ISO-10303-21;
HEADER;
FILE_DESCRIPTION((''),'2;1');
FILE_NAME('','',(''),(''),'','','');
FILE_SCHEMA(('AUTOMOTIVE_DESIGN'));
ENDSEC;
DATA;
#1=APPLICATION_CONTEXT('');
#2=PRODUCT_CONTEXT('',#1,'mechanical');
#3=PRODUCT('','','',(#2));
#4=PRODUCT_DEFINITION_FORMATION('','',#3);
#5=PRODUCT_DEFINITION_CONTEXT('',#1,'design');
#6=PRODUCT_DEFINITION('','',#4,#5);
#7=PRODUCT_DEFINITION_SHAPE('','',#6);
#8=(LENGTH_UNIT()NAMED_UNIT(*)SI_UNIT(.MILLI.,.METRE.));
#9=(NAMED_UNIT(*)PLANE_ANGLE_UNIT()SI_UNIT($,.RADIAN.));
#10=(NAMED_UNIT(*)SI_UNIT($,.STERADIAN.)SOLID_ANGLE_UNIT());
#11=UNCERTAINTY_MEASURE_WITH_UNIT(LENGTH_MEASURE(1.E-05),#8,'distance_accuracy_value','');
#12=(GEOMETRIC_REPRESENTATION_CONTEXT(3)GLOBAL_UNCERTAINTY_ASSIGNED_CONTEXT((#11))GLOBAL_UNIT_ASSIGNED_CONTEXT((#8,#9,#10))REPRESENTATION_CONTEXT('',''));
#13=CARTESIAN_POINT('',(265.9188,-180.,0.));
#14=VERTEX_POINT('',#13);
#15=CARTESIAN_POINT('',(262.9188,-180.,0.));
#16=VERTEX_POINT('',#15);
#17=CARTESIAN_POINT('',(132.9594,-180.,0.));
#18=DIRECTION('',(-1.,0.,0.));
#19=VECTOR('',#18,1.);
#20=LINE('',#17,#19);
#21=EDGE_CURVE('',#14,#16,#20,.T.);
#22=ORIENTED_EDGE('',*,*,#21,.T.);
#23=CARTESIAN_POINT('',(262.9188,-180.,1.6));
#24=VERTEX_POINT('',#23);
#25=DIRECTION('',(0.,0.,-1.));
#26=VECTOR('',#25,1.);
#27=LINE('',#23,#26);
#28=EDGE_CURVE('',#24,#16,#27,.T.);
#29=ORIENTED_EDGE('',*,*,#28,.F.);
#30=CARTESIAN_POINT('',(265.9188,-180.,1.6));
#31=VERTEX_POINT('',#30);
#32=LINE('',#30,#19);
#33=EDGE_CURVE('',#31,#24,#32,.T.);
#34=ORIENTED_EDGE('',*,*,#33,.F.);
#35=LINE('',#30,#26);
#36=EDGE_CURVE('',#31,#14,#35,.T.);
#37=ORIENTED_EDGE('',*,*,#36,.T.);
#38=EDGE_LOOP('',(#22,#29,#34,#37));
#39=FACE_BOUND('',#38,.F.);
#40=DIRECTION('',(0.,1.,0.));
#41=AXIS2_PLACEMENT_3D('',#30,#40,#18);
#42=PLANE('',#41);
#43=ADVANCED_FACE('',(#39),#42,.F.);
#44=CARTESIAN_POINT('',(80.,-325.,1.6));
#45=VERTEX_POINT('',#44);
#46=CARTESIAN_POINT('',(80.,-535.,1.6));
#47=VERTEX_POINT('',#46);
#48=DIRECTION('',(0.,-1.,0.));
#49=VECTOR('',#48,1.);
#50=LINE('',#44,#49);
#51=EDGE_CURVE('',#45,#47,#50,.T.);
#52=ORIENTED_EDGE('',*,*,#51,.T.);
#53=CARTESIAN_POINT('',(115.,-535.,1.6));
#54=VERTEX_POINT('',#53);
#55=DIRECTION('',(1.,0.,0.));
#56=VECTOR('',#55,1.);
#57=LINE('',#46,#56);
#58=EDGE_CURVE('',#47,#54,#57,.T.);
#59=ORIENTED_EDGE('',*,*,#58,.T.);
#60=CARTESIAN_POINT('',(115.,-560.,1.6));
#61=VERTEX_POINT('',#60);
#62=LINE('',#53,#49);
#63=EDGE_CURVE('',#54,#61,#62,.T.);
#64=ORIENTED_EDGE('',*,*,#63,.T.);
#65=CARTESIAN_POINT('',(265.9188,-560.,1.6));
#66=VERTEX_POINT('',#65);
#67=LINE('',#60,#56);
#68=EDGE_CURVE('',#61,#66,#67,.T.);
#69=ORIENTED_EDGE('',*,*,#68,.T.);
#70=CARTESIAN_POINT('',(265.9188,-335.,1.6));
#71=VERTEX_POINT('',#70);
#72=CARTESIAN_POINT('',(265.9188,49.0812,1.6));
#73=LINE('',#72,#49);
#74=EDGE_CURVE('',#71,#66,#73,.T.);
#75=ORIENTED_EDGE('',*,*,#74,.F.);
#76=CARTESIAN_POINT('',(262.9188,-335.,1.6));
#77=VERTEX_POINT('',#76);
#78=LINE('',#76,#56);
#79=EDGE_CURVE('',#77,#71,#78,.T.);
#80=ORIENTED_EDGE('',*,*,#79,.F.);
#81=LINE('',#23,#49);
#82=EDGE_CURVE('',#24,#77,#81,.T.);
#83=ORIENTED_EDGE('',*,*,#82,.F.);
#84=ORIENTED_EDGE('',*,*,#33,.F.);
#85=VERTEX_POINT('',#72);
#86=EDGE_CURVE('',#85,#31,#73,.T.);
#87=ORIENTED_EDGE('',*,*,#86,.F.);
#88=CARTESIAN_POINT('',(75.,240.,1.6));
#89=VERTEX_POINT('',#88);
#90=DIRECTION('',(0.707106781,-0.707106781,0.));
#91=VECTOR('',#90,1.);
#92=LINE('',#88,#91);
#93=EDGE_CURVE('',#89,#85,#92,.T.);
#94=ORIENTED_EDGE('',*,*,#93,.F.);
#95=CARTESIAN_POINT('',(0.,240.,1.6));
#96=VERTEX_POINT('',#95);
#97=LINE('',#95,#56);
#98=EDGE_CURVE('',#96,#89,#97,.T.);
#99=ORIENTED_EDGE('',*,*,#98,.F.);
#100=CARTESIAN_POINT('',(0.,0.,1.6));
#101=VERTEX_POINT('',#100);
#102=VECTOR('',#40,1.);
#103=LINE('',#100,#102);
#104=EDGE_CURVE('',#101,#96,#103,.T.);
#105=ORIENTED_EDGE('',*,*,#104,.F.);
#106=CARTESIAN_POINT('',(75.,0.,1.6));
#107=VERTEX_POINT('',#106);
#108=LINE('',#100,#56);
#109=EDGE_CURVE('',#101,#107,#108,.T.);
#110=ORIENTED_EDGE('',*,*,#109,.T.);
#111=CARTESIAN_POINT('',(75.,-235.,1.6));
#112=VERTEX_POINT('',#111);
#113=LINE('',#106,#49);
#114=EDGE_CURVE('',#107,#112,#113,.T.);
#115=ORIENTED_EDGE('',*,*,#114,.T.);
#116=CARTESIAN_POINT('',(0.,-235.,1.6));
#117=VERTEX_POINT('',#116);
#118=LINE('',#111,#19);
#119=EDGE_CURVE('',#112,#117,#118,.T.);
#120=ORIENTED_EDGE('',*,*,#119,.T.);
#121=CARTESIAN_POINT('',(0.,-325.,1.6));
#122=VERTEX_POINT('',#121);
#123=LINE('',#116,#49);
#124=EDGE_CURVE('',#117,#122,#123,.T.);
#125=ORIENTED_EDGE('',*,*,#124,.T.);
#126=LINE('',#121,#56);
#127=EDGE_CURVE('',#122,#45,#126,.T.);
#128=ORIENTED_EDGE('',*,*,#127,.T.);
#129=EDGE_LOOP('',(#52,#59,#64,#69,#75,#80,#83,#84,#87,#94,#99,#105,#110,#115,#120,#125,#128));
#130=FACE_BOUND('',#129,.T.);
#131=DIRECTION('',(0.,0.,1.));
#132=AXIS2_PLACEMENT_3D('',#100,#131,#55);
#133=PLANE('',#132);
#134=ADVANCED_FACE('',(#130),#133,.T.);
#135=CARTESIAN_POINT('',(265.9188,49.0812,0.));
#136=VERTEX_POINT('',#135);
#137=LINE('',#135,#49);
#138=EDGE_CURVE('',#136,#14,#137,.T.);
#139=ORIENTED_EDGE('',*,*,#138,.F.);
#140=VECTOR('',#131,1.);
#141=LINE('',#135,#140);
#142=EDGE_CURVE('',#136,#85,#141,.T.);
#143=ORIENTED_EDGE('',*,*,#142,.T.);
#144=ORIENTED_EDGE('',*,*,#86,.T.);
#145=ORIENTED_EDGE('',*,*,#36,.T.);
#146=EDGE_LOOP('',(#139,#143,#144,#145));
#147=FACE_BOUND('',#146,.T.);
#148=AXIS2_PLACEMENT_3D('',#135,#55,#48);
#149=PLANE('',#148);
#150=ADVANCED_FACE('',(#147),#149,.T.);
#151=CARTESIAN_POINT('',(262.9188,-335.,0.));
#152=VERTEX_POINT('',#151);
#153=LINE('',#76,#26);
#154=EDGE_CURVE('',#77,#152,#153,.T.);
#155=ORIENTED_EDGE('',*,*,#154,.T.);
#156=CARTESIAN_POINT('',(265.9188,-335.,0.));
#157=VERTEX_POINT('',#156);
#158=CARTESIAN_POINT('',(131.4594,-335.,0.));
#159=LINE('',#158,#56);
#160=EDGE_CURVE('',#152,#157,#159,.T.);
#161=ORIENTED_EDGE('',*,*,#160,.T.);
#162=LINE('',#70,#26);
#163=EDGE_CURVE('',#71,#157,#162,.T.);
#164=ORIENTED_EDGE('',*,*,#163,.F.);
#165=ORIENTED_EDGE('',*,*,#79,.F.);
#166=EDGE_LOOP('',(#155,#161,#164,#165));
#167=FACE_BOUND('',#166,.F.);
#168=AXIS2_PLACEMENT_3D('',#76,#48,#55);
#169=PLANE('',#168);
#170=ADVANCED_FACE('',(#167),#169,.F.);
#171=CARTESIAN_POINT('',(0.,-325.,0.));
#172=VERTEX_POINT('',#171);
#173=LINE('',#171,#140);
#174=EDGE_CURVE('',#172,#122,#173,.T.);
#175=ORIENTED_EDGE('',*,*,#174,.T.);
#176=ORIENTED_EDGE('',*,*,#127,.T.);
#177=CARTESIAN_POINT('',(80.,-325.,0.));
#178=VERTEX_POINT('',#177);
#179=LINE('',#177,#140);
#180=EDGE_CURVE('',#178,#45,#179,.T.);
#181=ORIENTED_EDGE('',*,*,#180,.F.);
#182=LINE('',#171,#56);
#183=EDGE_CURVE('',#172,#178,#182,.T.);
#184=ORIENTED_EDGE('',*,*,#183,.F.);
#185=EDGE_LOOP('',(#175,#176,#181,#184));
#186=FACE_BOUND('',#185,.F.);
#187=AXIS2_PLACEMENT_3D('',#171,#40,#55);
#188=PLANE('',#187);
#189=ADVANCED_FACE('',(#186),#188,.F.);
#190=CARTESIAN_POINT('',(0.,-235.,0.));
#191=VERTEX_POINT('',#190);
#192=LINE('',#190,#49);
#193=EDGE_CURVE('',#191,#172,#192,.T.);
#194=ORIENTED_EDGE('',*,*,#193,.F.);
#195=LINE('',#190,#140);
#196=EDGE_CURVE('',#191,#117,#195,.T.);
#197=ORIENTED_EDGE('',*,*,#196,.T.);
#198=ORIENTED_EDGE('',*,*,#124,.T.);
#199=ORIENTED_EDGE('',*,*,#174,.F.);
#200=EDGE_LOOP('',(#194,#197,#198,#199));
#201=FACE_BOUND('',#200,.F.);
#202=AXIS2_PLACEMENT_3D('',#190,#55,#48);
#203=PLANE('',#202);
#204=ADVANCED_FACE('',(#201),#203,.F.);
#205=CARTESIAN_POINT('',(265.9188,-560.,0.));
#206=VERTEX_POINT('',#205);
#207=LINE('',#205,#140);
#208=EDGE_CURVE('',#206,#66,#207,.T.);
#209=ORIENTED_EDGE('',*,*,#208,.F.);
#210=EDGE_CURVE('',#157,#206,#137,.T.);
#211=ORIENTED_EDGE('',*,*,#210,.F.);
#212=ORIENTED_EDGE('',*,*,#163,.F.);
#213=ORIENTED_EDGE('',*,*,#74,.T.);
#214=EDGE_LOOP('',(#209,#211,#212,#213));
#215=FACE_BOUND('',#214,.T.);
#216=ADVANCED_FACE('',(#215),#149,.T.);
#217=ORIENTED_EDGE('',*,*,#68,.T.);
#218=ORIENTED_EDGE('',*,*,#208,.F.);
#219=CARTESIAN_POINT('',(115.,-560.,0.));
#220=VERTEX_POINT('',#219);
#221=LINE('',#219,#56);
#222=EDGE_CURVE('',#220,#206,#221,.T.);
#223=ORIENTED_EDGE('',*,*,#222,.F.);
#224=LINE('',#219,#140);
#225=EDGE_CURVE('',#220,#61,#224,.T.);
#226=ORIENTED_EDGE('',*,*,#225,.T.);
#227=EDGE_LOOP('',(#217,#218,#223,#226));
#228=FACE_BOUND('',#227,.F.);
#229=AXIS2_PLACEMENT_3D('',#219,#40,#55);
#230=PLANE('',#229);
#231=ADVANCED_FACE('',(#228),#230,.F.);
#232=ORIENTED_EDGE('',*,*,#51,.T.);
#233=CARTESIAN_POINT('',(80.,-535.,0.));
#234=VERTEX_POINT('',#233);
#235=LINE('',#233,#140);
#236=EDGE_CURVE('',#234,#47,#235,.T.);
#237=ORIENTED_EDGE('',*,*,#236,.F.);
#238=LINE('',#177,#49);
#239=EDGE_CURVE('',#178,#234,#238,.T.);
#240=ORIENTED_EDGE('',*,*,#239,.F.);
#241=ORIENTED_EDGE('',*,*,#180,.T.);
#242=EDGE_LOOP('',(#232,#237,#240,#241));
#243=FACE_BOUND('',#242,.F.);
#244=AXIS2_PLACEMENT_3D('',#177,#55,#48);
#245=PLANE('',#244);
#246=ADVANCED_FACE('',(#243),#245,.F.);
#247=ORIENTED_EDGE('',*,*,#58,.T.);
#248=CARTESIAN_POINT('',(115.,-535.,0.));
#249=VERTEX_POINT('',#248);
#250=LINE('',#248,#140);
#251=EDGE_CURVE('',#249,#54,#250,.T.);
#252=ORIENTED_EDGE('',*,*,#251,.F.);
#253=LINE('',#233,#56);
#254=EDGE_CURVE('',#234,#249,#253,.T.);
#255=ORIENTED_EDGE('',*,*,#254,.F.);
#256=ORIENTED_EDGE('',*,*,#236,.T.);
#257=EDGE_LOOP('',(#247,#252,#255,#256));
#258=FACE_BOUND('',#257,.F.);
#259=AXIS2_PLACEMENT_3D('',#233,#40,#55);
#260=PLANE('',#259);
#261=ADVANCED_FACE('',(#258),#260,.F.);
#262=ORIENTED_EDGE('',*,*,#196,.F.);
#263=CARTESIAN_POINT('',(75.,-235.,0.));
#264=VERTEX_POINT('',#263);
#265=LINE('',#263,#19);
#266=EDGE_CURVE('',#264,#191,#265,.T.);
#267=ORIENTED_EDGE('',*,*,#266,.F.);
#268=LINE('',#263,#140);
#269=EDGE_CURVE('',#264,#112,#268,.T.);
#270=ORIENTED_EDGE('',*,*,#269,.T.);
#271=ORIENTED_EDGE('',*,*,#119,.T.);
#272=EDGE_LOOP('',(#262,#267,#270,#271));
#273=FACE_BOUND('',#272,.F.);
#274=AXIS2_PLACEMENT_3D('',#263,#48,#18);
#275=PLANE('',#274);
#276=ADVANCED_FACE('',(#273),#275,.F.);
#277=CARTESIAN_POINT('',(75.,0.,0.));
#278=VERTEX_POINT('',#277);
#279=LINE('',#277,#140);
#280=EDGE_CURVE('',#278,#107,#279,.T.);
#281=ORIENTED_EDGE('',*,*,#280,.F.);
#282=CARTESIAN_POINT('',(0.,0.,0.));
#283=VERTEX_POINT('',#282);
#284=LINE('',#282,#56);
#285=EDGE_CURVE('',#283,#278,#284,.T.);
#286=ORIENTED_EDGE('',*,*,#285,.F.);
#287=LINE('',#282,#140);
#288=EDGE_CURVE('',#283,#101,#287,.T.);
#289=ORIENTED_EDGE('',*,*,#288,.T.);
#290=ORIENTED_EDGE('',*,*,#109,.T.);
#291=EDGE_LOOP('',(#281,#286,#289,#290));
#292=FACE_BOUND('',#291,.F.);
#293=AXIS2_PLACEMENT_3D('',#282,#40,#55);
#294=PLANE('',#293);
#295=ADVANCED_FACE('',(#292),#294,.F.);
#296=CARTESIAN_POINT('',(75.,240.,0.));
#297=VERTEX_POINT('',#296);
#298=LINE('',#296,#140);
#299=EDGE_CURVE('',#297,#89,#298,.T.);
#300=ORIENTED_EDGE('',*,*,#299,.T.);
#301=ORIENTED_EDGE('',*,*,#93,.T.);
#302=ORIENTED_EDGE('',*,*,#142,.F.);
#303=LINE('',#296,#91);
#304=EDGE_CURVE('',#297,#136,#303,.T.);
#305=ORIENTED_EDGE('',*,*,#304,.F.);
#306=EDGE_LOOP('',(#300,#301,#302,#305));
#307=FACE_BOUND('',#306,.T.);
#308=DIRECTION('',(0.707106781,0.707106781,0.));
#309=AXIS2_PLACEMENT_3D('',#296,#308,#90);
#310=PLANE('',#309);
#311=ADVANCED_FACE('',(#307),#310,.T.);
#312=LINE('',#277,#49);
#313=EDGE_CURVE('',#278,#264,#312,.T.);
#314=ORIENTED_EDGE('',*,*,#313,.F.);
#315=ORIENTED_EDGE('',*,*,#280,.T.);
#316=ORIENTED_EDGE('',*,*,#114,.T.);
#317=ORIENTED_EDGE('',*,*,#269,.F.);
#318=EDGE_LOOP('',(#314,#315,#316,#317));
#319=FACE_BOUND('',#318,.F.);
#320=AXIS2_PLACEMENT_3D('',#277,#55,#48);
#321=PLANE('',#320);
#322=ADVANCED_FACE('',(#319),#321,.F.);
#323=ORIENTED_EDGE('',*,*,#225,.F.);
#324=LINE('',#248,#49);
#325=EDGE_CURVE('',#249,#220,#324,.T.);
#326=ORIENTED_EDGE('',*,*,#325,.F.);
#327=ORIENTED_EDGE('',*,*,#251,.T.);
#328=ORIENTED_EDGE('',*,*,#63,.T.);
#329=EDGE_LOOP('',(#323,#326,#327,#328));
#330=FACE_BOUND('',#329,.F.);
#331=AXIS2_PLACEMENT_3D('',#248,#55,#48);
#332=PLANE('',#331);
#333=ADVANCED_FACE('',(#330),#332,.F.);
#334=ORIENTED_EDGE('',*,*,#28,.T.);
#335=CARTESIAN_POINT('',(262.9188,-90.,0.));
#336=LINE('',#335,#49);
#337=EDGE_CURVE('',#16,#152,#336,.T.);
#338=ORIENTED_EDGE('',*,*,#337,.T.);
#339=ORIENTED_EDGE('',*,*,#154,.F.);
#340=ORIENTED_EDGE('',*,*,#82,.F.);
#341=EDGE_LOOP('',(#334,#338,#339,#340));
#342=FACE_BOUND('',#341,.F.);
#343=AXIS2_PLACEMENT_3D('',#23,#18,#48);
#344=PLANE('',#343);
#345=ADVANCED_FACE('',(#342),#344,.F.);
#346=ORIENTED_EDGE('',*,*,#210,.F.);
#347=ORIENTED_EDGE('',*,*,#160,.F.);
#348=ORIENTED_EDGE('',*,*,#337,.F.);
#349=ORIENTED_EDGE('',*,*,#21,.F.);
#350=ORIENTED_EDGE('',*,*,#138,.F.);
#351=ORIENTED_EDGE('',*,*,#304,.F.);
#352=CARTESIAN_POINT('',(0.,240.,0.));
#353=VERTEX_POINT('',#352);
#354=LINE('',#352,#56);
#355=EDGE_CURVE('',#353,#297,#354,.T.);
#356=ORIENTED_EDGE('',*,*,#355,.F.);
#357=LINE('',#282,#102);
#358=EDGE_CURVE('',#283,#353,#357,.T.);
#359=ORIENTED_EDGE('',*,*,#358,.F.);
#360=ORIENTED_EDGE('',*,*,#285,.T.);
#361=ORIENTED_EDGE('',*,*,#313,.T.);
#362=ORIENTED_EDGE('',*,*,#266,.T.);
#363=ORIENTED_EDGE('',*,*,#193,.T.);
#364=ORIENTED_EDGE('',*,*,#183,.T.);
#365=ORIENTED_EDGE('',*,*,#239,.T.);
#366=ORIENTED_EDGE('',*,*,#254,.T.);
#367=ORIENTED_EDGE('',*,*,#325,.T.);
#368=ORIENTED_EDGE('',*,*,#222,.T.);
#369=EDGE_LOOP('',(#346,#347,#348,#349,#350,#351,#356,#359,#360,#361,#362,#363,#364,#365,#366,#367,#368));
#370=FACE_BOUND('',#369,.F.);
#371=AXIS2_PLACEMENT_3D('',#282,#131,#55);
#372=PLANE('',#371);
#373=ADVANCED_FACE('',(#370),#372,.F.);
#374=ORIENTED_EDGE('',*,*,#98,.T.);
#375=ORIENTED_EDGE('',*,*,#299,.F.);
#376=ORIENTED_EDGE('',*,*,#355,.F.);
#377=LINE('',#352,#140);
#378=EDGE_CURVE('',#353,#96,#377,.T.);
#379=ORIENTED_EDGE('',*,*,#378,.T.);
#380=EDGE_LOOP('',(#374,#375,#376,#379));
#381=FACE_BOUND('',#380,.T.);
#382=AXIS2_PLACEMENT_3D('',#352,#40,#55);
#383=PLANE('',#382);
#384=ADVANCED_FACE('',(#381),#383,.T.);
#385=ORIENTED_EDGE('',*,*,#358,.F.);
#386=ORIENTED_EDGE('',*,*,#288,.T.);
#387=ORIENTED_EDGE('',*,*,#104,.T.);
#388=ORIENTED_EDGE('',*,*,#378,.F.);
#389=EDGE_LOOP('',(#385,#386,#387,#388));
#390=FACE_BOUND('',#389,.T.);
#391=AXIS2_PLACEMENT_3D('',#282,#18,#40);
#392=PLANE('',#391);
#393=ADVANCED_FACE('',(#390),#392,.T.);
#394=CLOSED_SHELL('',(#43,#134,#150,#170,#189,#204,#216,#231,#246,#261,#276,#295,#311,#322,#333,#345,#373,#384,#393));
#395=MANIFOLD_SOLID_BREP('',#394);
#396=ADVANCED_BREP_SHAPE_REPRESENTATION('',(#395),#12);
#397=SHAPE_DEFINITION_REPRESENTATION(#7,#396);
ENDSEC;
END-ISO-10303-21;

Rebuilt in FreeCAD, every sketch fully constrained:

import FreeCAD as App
import Part
import Sketcher
from FreeCAD import Vector
Q = App.Units.Quantity


def add_polygon(sketch, points):
    """Adds a closed chain of lines whose ends are joined by coincident constraints."""
    first, n = sketch.GeometryCount, len(points)
    for a, b in zip(points, points[1:] + points[:1]):
        sketch.addGeometry(Part.LineSegment(App.Vector(*a, 0), App.Vector(*b, 0)), False)
    for i in range(n):
        sketch.addConstraint(Sketcher.Constraint("Coincident", first + i, 2, first + (i + 1) % n, 1))

doc = App.newDocument("Part")
params = doc.addObject("Spreadsheet::Sheet", "Params")
for row, (alias, value) in enumerate([
    ("sketch1_width", "75 mm"),
    ("sketch1_width2", "80 mm"),
    ("sketch1_width3", "35 mm"),
    ("sketch1_height", "240 mm"),
    ("sketch1_height2", "235 mm"),
    ("pad1_length", "1.6 mm"),
    ("sketch2_width", "3 mm"),
    ("sketch2_height", "155 mm"),
    ("pocket1_length", "10 mm"),
], start=1):
    params.set(f"A{row}", alias)
    params.set(f"B{row}", "=" + value)
    params.setAlias(f"B{row}", alias)

body = doc.addObject("PartDesign::Body", "Body")

# Sketch on XY plane
sketch1 = doc.addObject("Sketcher::SketchObject", "Sketch")
body.addObject(sketch1)
sketch1.AttachmentSupport = (doc.XY_Plane, [""])
sketch1.MapMode = "FlatFace"
add_polygon(sketch1, [(0, 240), (0, 0), (75, 0), (75, -235), (0, -235), (0, -325), (80, -325), (80, -535), (115, -535), (115, -560), (266, -560), (266, 49), (75, 240)])  # lines 0-12
sketch1.addConstraint([
    Sketcher.Constraint("Vertical", 0),
    Sketcher.Constraint("Horizontal", 1),
    Sketcher.Constraint("Vertical", 2),
    Sketcher.Constraint("Horizontal", 3),
    Sketcher.Constraint("Vertical", 4),
    Sketcher.Constraint("Horizontal", 5),
    Sketcher.Constraint("Vertical", 6),
    Sketcher.Constraint("Horizontal", 7),
    Sketcher.Constraint("Vertical", 8),
    Sketcher.Constraint("Horizontal", 9),
    Sketcher.Constraint("Vertical", 10),
    Sketcher.Constraint("Horizontal", 12),
    Sketcher.Constraint("Coincident", 0, 2, -1, 1),
    Sketcher.Constraint("PointOnObject", 3, 2, -2),
    Sketcher.Constraint("Vertical", 2, 2, 11, 2),
    Sketcher.Constraint("DistanceX", 1, 1, 1, 2, Q("75 mm")),
    Sketcher.Constraint("DistanceX", 5, 1, 5, 2, Q("80 mm")),
    Sketcher.Constraint("DistanceX", 7, 1, 7, 2, Q("35 mm")),
    Sketcher.Constraint("DistanceY", 0, 2, 0, 1, Q("240 mm")),
    Sketcher.Constraint("DistanceY", 2, 2, 2, 1, Q("235 mm")),
    Sketcher.Constraint("DistanceY", 4, 2, 4, 1, Q("90 mm")),
    Sketcher.Constraint("DistanceY", 6, 2, 6, 1, Q("210 mm")),
    Sketcher.Constraint("DistanceY", 8, 2, 8, 1, Q("25 mm")),
    Sketcher.Constraint("Distance", 11, Q("270 mm")),
    Sketcher.Constraint("Angle", 11, Q("135 deg")),
])
sketch1.setExpression("Constraints[28]", "Params.sketch1_width")
sketch1.setExpression("Constraints[29]", "Params.sketch1_width2")
sketch1.setExpression("Constraints[30]", "Params.sketch1_width3")
sketch1.setExpression("Constraints[31]", "Params.sketch1_height")
sketch1.setExpression("Constraints[32]", "Params.sketch1_height2")
pad1 = doc.addObject("PartDesign::Pad", "Pad")
body.addObject(pad1)
pad1.Profile = sketch1
pad1.setExpression("Length", "Params.pad1_length")

# Sketch on XY plane
sketch2 = doc.addObject("Sketcher::SketchObject", "Sketch001")
body.addObject(sketch2)
sketch2.AttachmentSupport = (doc.XY_Plane, [""])
sketch2.MapMode = "FlatFace"
sketch2.AttachmentOffset = App.Placement(Vector(0, 0, 1.6), App.Rotation())
add_polygon(sketch2, [(262.9, -180), (262.9, -335), (265.9, -335), (265.9, -180)])  # lines 0-3
sketch2.addConstraint([
    Sketcher.Constraint("Vertical", 0),
    Sketcher.Constraint("Horizontal", 1),
    Sketcher.Constraint("Vertical", 2),
    Sketcher.Constraint("Horizontal", 3),
    Sketcher.Constraint("DistanceX", 1, 1, 1, 2, Q("3 mm")),
    Sketcher.Constraint("DistanceY", 0, 2, 0, 1, Q("155 mm")),
    Sketcher.Constraint("DistanceY", 0, 2, -1, 1, Q("335 mm")),
    Sketcher.Constraint("DistanceX", -1, 1, 0, 2, Q("262.9188 mm")),
])
sketch2.setExpression("Constraints[8]", "Params.sketch2_width")
sketch2.setExpression("Constraints[9]", "Params.sketch2_height")
pocket1 = doc.addObject("PartDesign::Pocket", "Pocket")
body.addObject(pocket1)
pocket1.Profile = sketch2
pocket1.setExpression("Length", "Params.pocket1_length")

doc.recompute()
